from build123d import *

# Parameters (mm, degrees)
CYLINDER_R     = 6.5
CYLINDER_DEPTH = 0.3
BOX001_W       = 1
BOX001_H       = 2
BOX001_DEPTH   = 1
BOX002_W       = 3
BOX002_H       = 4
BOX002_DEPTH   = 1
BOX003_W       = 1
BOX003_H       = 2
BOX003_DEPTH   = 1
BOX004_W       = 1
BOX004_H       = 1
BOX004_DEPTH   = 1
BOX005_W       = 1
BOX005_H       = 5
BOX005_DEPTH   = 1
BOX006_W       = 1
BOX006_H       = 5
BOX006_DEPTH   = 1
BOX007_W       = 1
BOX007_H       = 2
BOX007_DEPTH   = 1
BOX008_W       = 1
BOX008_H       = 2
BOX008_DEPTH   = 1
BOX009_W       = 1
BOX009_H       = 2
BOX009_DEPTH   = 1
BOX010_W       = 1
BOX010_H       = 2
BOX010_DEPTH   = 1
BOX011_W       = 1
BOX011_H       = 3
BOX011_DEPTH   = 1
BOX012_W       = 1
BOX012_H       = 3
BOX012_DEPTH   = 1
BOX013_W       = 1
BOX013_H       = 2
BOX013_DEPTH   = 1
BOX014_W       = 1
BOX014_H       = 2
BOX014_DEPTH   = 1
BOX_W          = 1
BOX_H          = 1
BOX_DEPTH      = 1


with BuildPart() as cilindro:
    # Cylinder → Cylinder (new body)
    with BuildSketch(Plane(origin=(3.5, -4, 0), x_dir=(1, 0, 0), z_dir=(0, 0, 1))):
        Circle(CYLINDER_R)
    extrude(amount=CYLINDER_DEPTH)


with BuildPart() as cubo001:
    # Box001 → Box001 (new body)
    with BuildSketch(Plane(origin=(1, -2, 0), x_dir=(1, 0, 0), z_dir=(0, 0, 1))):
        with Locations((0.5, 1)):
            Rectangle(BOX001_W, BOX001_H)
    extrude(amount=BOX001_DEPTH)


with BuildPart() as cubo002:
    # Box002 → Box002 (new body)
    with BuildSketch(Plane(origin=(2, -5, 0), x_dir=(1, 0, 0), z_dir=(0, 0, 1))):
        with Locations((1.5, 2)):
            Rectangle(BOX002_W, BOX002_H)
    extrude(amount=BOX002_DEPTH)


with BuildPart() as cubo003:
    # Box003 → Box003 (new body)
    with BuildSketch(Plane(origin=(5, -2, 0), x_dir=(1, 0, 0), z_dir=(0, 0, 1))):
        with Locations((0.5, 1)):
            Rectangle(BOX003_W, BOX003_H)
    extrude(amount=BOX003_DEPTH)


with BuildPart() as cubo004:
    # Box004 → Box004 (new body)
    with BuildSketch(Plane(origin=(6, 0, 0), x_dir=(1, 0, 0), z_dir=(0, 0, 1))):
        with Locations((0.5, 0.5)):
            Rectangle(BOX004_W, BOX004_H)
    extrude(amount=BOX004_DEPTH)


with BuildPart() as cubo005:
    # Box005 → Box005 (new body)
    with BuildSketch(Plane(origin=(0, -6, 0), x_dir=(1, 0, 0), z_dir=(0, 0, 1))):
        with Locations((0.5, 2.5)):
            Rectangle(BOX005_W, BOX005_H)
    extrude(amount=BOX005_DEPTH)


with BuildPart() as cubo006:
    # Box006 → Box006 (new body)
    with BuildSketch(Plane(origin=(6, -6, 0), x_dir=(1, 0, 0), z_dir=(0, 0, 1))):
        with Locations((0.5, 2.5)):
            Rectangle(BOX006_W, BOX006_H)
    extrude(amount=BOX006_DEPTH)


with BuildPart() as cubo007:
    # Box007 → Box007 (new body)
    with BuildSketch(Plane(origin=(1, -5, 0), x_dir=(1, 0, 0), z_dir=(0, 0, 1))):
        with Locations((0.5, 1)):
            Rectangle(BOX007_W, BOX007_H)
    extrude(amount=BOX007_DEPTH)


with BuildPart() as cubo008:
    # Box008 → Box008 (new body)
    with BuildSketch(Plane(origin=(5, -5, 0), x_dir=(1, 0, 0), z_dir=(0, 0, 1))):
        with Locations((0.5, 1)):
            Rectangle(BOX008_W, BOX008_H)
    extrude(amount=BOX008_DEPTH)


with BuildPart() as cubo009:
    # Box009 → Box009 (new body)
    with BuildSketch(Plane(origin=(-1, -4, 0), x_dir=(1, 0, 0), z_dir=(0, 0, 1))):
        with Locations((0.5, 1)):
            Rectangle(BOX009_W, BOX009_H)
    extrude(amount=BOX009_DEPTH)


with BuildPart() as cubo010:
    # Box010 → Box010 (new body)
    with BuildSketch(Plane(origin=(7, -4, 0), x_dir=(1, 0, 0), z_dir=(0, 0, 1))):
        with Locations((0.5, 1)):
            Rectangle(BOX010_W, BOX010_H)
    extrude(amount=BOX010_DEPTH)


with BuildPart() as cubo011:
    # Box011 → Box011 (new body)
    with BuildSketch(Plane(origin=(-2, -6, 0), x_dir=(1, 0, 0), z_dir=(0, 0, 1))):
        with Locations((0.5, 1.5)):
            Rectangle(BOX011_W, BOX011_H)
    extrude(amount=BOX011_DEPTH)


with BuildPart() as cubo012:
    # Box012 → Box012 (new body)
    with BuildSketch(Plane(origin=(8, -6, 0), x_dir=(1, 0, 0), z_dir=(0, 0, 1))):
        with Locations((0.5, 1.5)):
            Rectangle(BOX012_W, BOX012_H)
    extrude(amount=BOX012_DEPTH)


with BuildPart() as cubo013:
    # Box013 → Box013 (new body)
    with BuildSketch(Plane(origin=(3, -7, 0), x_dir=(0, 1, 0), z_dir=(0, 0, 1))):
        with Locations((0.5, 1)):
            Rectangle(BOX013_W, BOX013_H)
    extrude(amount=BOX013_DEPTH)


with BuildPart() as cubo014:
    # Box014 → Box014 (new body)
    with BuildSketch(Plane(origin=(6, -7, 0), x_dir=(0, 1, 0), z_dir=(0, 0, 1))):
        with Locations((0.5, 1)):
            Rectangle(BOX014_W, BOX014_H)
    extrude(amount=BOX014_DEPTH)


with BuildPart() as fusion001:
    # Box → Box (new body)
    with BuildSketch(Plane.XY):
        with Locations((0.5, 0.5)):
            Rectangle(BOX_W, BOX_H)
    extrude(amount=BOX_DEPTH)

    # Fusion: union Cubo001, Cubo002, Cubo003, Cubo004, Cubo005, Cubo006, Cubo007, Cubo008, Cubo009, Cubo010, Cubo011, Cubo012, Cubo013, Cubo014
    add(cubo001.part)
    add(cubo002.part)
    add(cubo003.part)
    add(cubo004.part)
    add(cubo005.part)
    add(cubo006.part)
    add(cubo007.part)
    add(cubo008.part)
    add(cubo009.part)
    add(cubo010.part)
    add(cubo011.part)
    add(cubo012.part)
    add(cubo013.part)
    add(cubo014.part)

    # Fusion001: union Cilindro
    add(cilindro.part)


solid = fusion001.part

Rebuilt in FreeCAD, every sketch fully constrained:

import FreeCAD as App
import Part
import Sketcher

V = App.Vector
Q = App.Units.Quantity

doc = App.newDocument("Part")
params = doc.addObject("Spreadsheet::Sheet", "Params")
for row, (alias, value) in enumerate([
    ("sketch1_diameter", "13 mm"),
    ("pad1_length", "0.3 mm"),
    ("sketch2_width", "1 mm"),
    ("sketch2_height", "2 mm"),
    ("pad2_length", "1 mm"),
    ("sketch3_width", "3 mm"),
    ("sketch3_height", "4 mm"),
    ("pad3_length", "1 mm"),
    ("sketch4_width", "1 mm"),
    ("sketch4_height", "2 mm"),
    ("pad4_length", "1 mm"),
    ("sketch5_width", "1 mm"),
    ("pad5_length", "1 mm"),
    ("sketch6_width", "1 mm"),
    ("sketch6_height", "5 mm"),
    ("pad6_length", "1 mm"),
    ("sketch7_width", "1 mm"),
    ("sketch7_height", "5 mm"),
    ("pad7_length", "1 mm"),
    ("sketch8_width", "1 mm"),
    ("sketch8_height", "2 mm"),
    ("pad8_length", "1 mm"),
    ("sketch9_width", "1 mm"),
    ("sketch9_height", "2 mm"),
    ("pad9_length", "1 mm"),
    ("sketch10_width", "1 mm"),
    ("sketch10_height", "2 mm"),
    ("pad10_length", "1 mm"),
    ("sketch11_width", "1 mm"),
    ("sketch11_height", "2 mm"),
    ("pad11_length", "1 mm"),
    ("sketch12_width", "1 mm"),
    ("sketch12_height", "3 mm"),
    ("pad12_length", "1 mm"),
    ("sketch13_width", "1 mm"),
    ("sketch13_height", "3 mm"),
    ("pad13_length", "1 mm"),
    ("sketch14_width", "2 mm"),
    ("sketch14_height", "1 mm"),
    ("pad14_length", "1 mm"),
    ("sketch15_width", "2 mm"),
    ("sketch15_height", "1 mm"),
    ("pad15_length", "1 mm"),
    ("sketch16_width", "1 mm"),
    ("pad16_length", "1 mm"),
], start=1):
    params.set(f"A{row}", alias)
    params.set(f"B{row}", "=" + value)
    params.setAlias(f"B{row}", alias)

body = doc.addObject("PartDesign::Body", "Body")

# Sketch on XY plane
sketch1 = body.newObject("Sketcher::SketchObject", "Sketch")
sketch1.AttachmentSupport = (doc.getObject("XY_Plane"), [""])
sketch1.MapMode = "FlatFace"
sketch1.addGeometry(Part.Circle(V(4, -4, 0), V(0, 0, 1), 6), False)
sketch1.addConstraint([
    Sketcher.Constraint("Diameter", 0, Q("13 mm")),
    Sketcher.Constraint("DistanceY", 0, 3, -1, 1, Q("4 mm")),
    Sketcher.Constraint("DistanceX", -1, 1, 0, 3, Q("3.5 mm")),
])
sketch1.setExpression("Constraints[0]", "Params.sketch1_diameter")
pad1 = body.newObject("PartDesign::Pad", "Pad")
pad1.Profile = sketch1
pad1.setExpression("Length", "Params.pad1_length")
body2 = doc.addObject("PartDesign::Body", "Body001")

# Sketch on XY plane
sketch2 = body2.newObject("Sketcher::SketchObject", "Sketch001")
sketch2.AttachmentSupport = (doc.getObject("XY_Plane001"), [""])
sketch2.MapMode = "FlatFace"
sketch2.addGeometry([
    Part.LineSegment(V(1, 0, 0), V(1, -2, 0)),
    Part.LineSegment(V(1, -2, 0), V(2, -2, 0)),
    Part.LineSegment(V(2, -2, 0), V(2, 0, 0)),
    Part.LineSegment(V(2, 0, 0), V(1, 0, 0)),
], False)
sketch2.addConstraint([
    Sketcher.Constraint("Coincident", 0, 2, 1, 1),
    Sketcher.Constraint("Coincident", 1, 2, 2, 1),
    Sketcher.Constraint("Coincident", 2, 2, 3, 1),
    Sketcher.Constraint("Coincident", 3, 2, 0, 1),
    Sketcher.Constraint("Vertical", 0),
    Sketcher.Constraint("Horizontal", 1),
    Sketcher.Constraint("Vertical", 2),
    Sketcher.Constraint("Horizontal", 3),
    Sketcher.Constraint("PointOnObject", 2, 2, -1),
    Sketcher.Constraint("DistanceX", 1, 1, 1, 2, Q("1 mm")),
    Sketcher.Constraint("DistanceY", 0, 2, 0, 1, Q("2 mm")),
    Sketcher.Constraint("DistanceX", -1, 1, 0, 2, Q("1 mm")),
])
sketch2.setExpression("Constraints[9]", "Params.sketch2_width")
sketch2.setExpression("Constraints[10]", "Params.sketch2_height")
pad2 = body2.newObject("PartDesign::Pad", "Pad001")
pad2.Profile = sketch2
pad2.setExpression("Length", "Params.pad2_length")
body3 = doc.addObject("PartDesign::Body", "Body002")

# Sketch on XY plane
sketch3 = body3.newObject("Sketcher::SketchObject", "Sketch002")
sketch3.AttachmentSupport = (doc.getObject("XY_Plane002"), [""])
sketch3.MapMode = "FlatFace"
sketch3.addGeometry([
    Part.LineSegment(V(2, -1, 0), V(2, -5, 0)),
    Part.LineSegment(V(2, -5, 0), V(5, -5, 0)),
    Part.LineSegment(V(5, -5, 0), V(5, -1, 0)),
    Part.LineSegment(V(5, -1, 0), V(2, -1, 0)),
], False)
sketch3.addConstraint([
    Sketcher.Constraint("Coincident", 0, 2, 1, 1),
    Sketcher.Constraint("Coincident", 1, 2, 2, 1),
    Sketcher.Constraint("Coincident", 2, 2, 3, 1),
    Sketcher.Constraint("Coincident", 3, 2, 0, 1),
    Sketcher.Constraint("Vertical", 0),
    Sketcher.Constraint("Horizontal", 1),
    Sketcher.Constraint("Vertical", 2),
    Sketcher.Constraint("Horizontal", 3),
    Sketcher.Constraint("DistanceX", 1, 1, 1, 2, Q("3 mm")),
    Sketcher.Constraint("DistanceY", 0, 2, 0, 1, Q("4 mm")),
    Sketcher.Constraint("DistanceX", -1, 1, 0, 2, Q("2 mm")),
    Sketcher.Constraint("DistanceY", 0, 2, -1, 1, Q("5 mm")),
])
sketch3.setExpression("Constraints[8]", "Params.sketch3_width")
sketch3.setExpression("Constraints[9]", "Params.sketch3_height")
pad3 = body3.newObject("PartDesign::Pad", "Pad002")
pad3.Profile = sketch3
pad3.setExpression("Length", "Params.pad3_length")
body4 = doc.addObject("PartDesign::Body", "Body003")

# Sketch on XY plane
sketch4 = body4.newObject("Sketcher::SketchObject", "Sketch003")
sketch4.AttachmentSupport = (doc.getObject("XY_Plane003"), [""])
sketch4.MapMode = "FlatFace"
sketch4.addGeometry([
    Part.LineSegment(V(5, 0, 0), V(5, -2, 0)),
    Part.LineSegment(V(5, -2, 0), V(6, -2, 0)),
    Part.LineSegment(V(6, -2, 0), V(6, 0, 0)),
    Part.LineSegment(V(6, 0, 0), V(5, 0, 0)),
], False)
sketch4.addConstraint([
    Sketcher.Constraint("Coincident", 0, 2, 1, 1),
    Sketcher.Constraint("Coincident", 1, 2, 2, 1),
    Sketcher.Constraint("Coincident", 2, 2, 3, 1),
    Sketcher.Constraint("Coincident", 3, 2, 0, 1),
    Sketcher.Constraint("Vertical", 0),
    Sketcher.Constraint("Horizontal", 1),
    Sketcher.Constraint("Vertical", 2),
    Sketcher.Constraint("Horizontal", 3),
    Sketcher.Constraint("PointOnObject", 2, 2, -1),
    Sketcher.Constraint("DistanceX", 1, 1, 1, 2, Q("1 mm")),
    Sketcher.Constraint("DistanceY", 0, 2, 0, 1, Q("2 mm")),
    Sketcher.Constraint("DistanceX", -1, 1, 0, 2, Q("5 mm")),
])
sketch4.setExpression("Constraints[9]", "Params.sketch4_width")
sketch4.setExpression("Constraints[10]", "Params.sketch4_height")
pad4 = body4.newObject("PartDesign::Pad", "Pad003")
pad4.Profile = sketch4
pad4.setExpression("Length", "Params.pad4_length")
body5 = doc.addObject("PartDesign::Body", "Body004")

# Sketch on XY plane
sketch5 = body5.newObject("Sketcher::SketchObject", "Sketch004")
sketch5.AttachmentSupport = (doc.getObject("XY_Plane004"), [""])
sketch5.MapMode = "FlatFace"
sketch5.addGeometry([
    Part.LineSegment(V(6, 1, 0), V(6, 0, 0)),
    Part.LineSegment(V(6, 0, 0), V(7, 0, 0)),
    Part.LineSegment(V(7, 0, 0), V(7, 1, 0)),
    Part.LineSegment(V(7, 1, 0), V(6, 1, 0)),
], False)
sketch5.addConstraint([
    Sketcher.Constraint("Coincident", 0, 2, 1, 1),
    Sketcher.Constraint("Coincident", 1, 2, 2, 1),
    Sketcher.Constraint("Coincident", 2, 2, 3, 1),
    Sketcher.Constraint("Coincident", 3, 2, 0, 1),
    Sketcher.Constraint("Vertical", 0),
    Sketcher.Constraint("Horizontal", 1),
    Sketcher.Constraint("Vertical", 2),
    Sketcher.Constraint("Horizontal", 3),
    Sketcher.Constraint("PointOnObject", 0, 2, -1),
    Sketcher.Constraint("Equal", 3, 0),
    Sketcher.Constraint("DistanceX", 1, 1, 1, 2, Q("1 mm")),
    Sketcher.Constraint("DistanceX", -1, 1, 0, 2, Q("6 mm")),
])
sketch5.setExpression("Constraints[10]", "Params.sketch5_width")
pad5 = body5.newObject("PartDesign::Pad", "Pad004")
pad5.Profile = sketch5
pad5.setExpression("Length", "Params.pad5_length")
body6 = doc.addObject("PartDesign::Body", "Body005")

# Sketch on XY plane
sketch6 = body6.newObject("Sketcher::SketchObject", "Sketch005")
sketch6.AttachmentSupport = (doc.getObject("XY_Plane005"), [""])
sketch6.MapMode = "FlatFace"
sketch6.addGeometry([
    Part.LineSegment(V(0, -1, 0), V(0, -6, 0)),
    Part.LineSegment(V(0, -6, 0), V(1, -6, 0)),
    Part.LineSegment(V(1, -6, 0), V(1, -1, 0)),
    Part.LineSegment(V(1, -1, 0), V(0, -1, 0)),
], False)
sketch6.addConstraint([
    Sketcher.Constraint("Coincident", 0, 2, 1, 1),
    Sketcher.Constraint("Coincident", 1, 2, 2, 1),
    Sketcher.Constraint("Coincident", 2, 2, 3, 1),
    Sketcher.Constraint("Coincident", 3, 2, 0, 1),
    Sketcher.Constraint("Vertical", 0),
    Sketcher.Constraint("Horizontal", 1),
    Sketcher.Constraint("Vertical", 2),
    Sketcher.Constraint("Horizontal", 3),
    Sketcher.Constraint("PointOnObject", 0, 2, -2),
    Sketcher.Constraint("DistanceX", 1, 1, 1, 2, Q("1 mm")),
    Sketcher.Constraint("DistanceY", 0, 2, 0, 1, Q("5 mm")),
    Sketcher.Constraint("DistanceY", 0, 2, -1, 1, Q("6 mm")),
])
sketch6.setExpression("Constraints[9]", "Params.sketch6_width")
sketch6.setExpression("Constraints[10]", "Params.sketch6_height")
pad6 = body6.newObject("PartDesign::Pad", "Pad005")
pad6.Profile = sketch6
pad6.setExpression("Length", "Params.pad6_length")
body7 = doc.addObject("PartDesign::Body", "Body006")

# Sketch on XY plane
sketch7 = body7.newObject("Sketcher::SketchObject", "Sketch006")
sketch7.AttachmentSupport = (doc.getObject("XY_Plane006"), [""])
sketch7.MapMode = "FlatFace"
sketch7.addGeometry([
    Part.LineSegment(V(6, -1, 0), V(6, -6, 0)),
    Part.LineSegment(V(6, -6, 0), V(7, -6, 0)),
    Part.LineSegment(V(7, -6, 0), V(7, -1, 0)),
    Part.LineSegment(V(7, -1, 0), V(6, -1, 0)),
], False)
sketch7.addConstraint([
    Sketcher.Constraint("Coincident", 0, 2, 1, 1),
    Sketcher.Constraint("Coincident", 1, 2, 2, 1),
    Sketcher.Constraint("Coincident", 2, 2, 3, 1),
    Sketcher.Constraint("Coincident", 3, 2, 0, 1),
    Sketcher.Constraint("Vertical", 0),
    Sketcher.Constraint("Horizontal", 1),
    Sketcher.Constraint("Vertical", 2),
    Sketcher.Constraint("Horizontal", 3),
    Sketcher.Constraint("DistanceX", 1, 1, 1, 2, Q("1 mm")),
    Sketcher.Constraint("DistanceY", 0, 2, 0, 1, Q("5 mm")),
    Sketcher.Constraint("DistanceX", -1, 1, 0, 2, Q("6 mm")),
    Sketcher.Constraint("DistanceY", 0, 2, -1, 1, Q("6 mm")),
])
sketch7.setExpression("Constraints[8]", "Params.sketch7_width")
sketch7.setExpression("Constraints[9]", "Params.sketch7_height")
pad7 = body7.newObject("PartDesign::Pad", "Pad006")
pad7.Profile = sketch7
pad7.setExpression("Length", "Params.pad7_length")
body8 = doc.addObject("PartDesign::Body", "Body007")

# Sketch on XY plane
sketch8 = body8.newObject("Sketcher::SketchObject", "Sketch007")
sketch8.AttachmentSupport = (doc.getObject("XY_Plane007"), [""])
sketch8.MapMode = "FlatFace"
sketch8.addGeometry([
    Part.LineSegment(V(1, -3, 0), V(1, -5, 0)),
    Part.LineSegment(V(1, -5, 0), V(2, -5, 0)),
    Part.LineSegment(V(2, -5, 0), V(2, -3, 0)),
    Part.LineSegment(V(2, -3, 0), V(1, -3, 0)),
], False)
sketch8.addConstraint([
    Sketcher.Constraint("Coincident", 0, 2, 1, 1),
    Sketcher.Constraint("Coincident", 1, 2, 2, 1),
    Sketcher.Constraint("Coincident", 2, 2, 3, 1),
    Sketcher.Constraint("Coincident", 3, 2, 0, 1),
    Sketcher.Constraint("Vertical", 0),
    Sketcher.Constraint("Horizontal", 1),
    Sketcher.Constraint("Vertical", 2),
    Sketcher.Constraint("Horizontal", 3),
    Sketcher.Constraint("DistanceX", 1, 1, 1, 2, Q("1 mm")),
    Sketcher.Constraint("DistanceY", 0, 2, 0, 1, Q("2 mm")),
    Sketcher.Constraint("DistanceX", -1, 1, 0, 2, Q("1 mm")),
    Sketcher.Constraint("DistanceY", 0, 2, -1, 1, Q("5 mm")),
])
sketch8.setExpression("Constraints[8]", "Params.sketch8_width")
sketch8.setExpression("Constraints[9]", "Params.sketch8_height")
pad8 = body8.newObject("PartDesign::Pad", "Pad007")
pad8.Profile = sketch8
pad8.setExpression("Length", "Params.pad8_length")
body9 = doc.addObject("PartDesign::Body", "Body008")

# Sketch on XY plane
sketch9 = body9.newObject("Sketcher::SketchObject", "Sketch008")
sketch9.AttachmentSupport = (doc.getObject("XY_Plane008"), [""])
sketch9.MapMode = "FlatFace"
sketch9.addGeometry([
    Part.LineSegment(V(5, -3, 0), V(5, -5, 0)),
    Part.LineSegment(V(5, -5, 0), V(6, -5, 0)),
    Part.LineSegment(V(6, -5, 0), V(6, -3, 0)),
    Part.LineSegment(V(6, -3, 0), V(5, -3, 0)),
], False)
sketch9.addConstraint([
    Sketcher.Constraint("Coincident", 0, 2, 1, 1),
    Sketcher.Constraint("Coincident", 1, 2, 2, 1),
    Sketcher.Constraint("Coincident", 2, 2, 3, 1),
    Sketcher.Constraint("Coincident", 3, 2, 0, 1),
    Sketcher.Constraint("Vertical", 0),
    Sketcher.Constraint("Horizontal", 1),
    Sketcher.Constraint("Vertical", 2),
    Sketcher.Constraint("Horizontal", 3),
    Sketcher.Constraint("DistanceX", 1, 1, 1, 2, Q("1 mm")),
    Sketcher.Constraint("DistanceY", 0, 2, 0, 1, Q("2 mm")),
    Sketcher.Constraint("DistanceX", -1, 1, 0, 2, Q("5 mm")),
    Sketcher.Constraint("DistanceY", 0, 2, -1, 1, Q("5 mm")),
])
sketch9.setExpression("Constraints[8]", "Params.sketch9_width")
sketch9.setExpression("Constraints[9]", "Params.sketch9_height")
pad9 = body9.newObject("PartDesign::Pad", "Pad008")
pad9.Profile = sketch9
pad9.setExpression("Length", "Params.pad9_length")
body10 = doc.addObject("PartDesign::Body", "Body009")

# Sketch on XY plane
sketch10 = body10.newObject("Sketcher::SketchObject", "Sketch009")
sketch10.AttachmentSupport = (doc.getObject("XY_Plane009"), [""])
sketch10.MapMode = "FlatFace"
sketch10.addGeometry([
    Part.LineSegment(V(-1, -2, 0), V(-1, -4, 0)),
    Part.LineSegment(V(-1, -4, 0), V(0, -4, 0)),
    Part.LineSegment(V(0, -4, 0), V(0, -2, 0)),
    Part.LineSegment(V(0, -2, 0), V(-1, -2, 0)),
], False)
sketch10.addConstraint([
    Sketcher.Constraint("Coincident", 0, 2, 1, 1),
    Sketcher.Constraint("Coincident", 1, 2, 2, 1),
    Sketcher.Constraint("Coincident", 2, 2, 3, 1),
    Sketcher.Constraint("Coincident", 3, 2, 0, 1),
    Sketcher.Constraint("Vertical", 0),
    Sketcher.Constraint("Horizontal", 1),
    Sketcher.Constraint("Vertical", 2),
    Sketcher.Constraint("Horizontal", 3),
    Sketcher.Constraint("PointOnObject", 1, 2, -2),
    Sketcher.Constraint("DistanceX", 1, 1, 1, 2, Q("1 mm")),
    Sketcher.Constraint("DistanceY", 0, 2, 0, 1, Q("2 mm")),
    Sketcher.Constraint("DistanceY", 0, 2, -1, 1, Q("4 mm")),
])
sketch10.setExpression("Constraints[9]", "Params.sketch10_width")
sketch10.setExpression("Constraints[10]", "Params.sketch10_height")
pad10 = body10.newObject("PartDesign::Pad", "Pad009")
pad10.Profile = sketch10
pad10.setExpression("Length", "Params.pad10_length")
body11 = doc.addObject("PartDesign::Body", "Body010")

# Sketch on XY plane
sketch11 = body11.newObject("Sketcher::SketchObject", "Sketch010")
sketch11.AttachmentSupport = (doc.getObject("XY_Plane010"), [""])
sketch11.MapMode = "FlatFace"
sketch11.addGeometry([
    Part.LineSegment(V(7, -2, 0), V(7, -4, 0)),
    Part.LineSegment(V(7, -4, 0), V(8, -4, 0)),
    Part.LineSegment(V(8, -4, 0), V(8, -2, 0)),
    Part.LineSegment(V(8, -2, 0), V(7, -2, 0)),
], False)
sketch11.addConstraint([
    Sketcher.Constraint("Coincident", 0, 2, 1, 1),
    Sketcher.Constraint("Coincident", 1, 2, 2, 1),
    Sketcher.Constraint("Coincident", 2, 2, 3, 1),
    Sketcher.Constraint("Coincident", 3, 2, 0, 1),
    Sketcher.Constraint("Vertical", 0),
    Sketcher.Constraint("Horizontal", 1),
    Sketcher.Constraint("Vertical", 2),
    Sketcher.Constraint("Horizontal", 3),
    Sketcher.Constraint("DistanceX", 1, 1, 1, 2, Q("1 mm")),
    Sketcher.Constraint("DistanceY", 0, 2, 0, 1, Q("2 mm")),
    Sketcher.Constraint("DistanceX", -1, 1, 0, 2, Q("7 mm")),
    Sketcher.Constraint("DistanceY", 0, 2, -1, 1, Q("4 mm")),
])
sketch11.setExpression("Constraints[8]", "Params.sketch11_width")
sketch11.setExpression("Constraints[9]", "Params.sketch11_height")
pad11 = body11.newObject("PartDesign::Pad", "Pad010")
pad11.Profile = sketch11
pad11.setExpression("Length", "Params.pad11_length")
body12 = doc.addObject("PartDesign::Body", "Body011")

# Sketch on XY plane
sketch12 = body12.newObject("Sketcher::SketchObject", "Sketch011")
sketch12.AttachmentSupport = (doc.getObject("XY_Plane011"), [""])
sketch12.MapMode = "FlatFace"
sketch12.addGeometry([
    Part.LineSegment(V(-2, -3, 0), V(-2, -6, 0)),
    Part.LineSegment(V(-2, -6, 0), V(-1, -6, 0)),
    Part.LineSegment(V(-1, -6, 0), V(-1, -3, 0)),
    Part.LineSegment(V(-1, -3, 0), V(-2, -3, 0)),
], False)
sketch12.addConstraint([
    Sketcher.Constraint("Coincident", 0, 2, 1, 1),
    Sketcher.Constraint("Coincident", 1, 2, 2, 1),
    Sketcher.Constraint("Coincident", 2, 2, 3, 1),
    Sketcher.Constraint("Coincident", 3, 2, 0, 1),
    Sketcher.Constraint("Vertical", 0),
    Sketcher.Constraint("Horizontal", 1),
    Sketcher.Constraint("Vertical", 2),
    Sketcher.Constraint("Horizontal", 3),
    Sketcher.Constraint("DistanceX", 1, 1, 1, 2, Q("1 mm")),
    Sketcher.Constraint("DistanceY", 0, 2, 0, 1, Q("3 mm")),
    Sketcher.Constraint("DistanceX", 0, 2, -1, 1, Q("2 mm")),
    Sketcher.Constraint("DistanceY", 0, 2, -1, 1, Q("6 mm")),
])
sketch12.setExpression("Constraints[8]", "Params.sketch12_width")
sketch12.setExpression("Constraints[9]", "Params.sketch12_height")
pad12 = body12.newObject("PartDesign::Pad", "Pad011")
pad12.Profile = sketch12
pad12.setExpression("Length", "Params.pad12_length")
body13 = doc.addObject("PartDesign::Body", "Body012")

# Sketch on XY plane
sketch13 = body13.newObject("Sketcher::SketchObject", "Sketch012")
sketch13.AttachmentSupport = (doc.getObject("XY_Plane012"), [""])
sketch13.MapMode = "FlatFace"
sketch13.addGeometry([
    Part.LineSegment(V(8, -3, 0), V(8, -6, 0)),
    Part.LineSegment(V(8, -6, 0), V(9, -6, 0)),
    Part.LineSegment(V(9, -6, 0), V(9, -3, 0)),
    Part.LineSegment(V(9, -3, 0), V(8, -3, 0)),
], False)
sketch13.addConstraint([
    Sketcher.Constraint("Coincident", 0, 2, 1, 1),
    Sketcher.Constraint("Coincident", 1, 2, 2, 1),
    Sketcher.Constraint("Coincident", 2, 2, 3, 1),
    Sketcher.Constraint("Coincident", 3, 2, 0, 1),
    Sketcher.Constraint("Vertical", 0),
    Sketcher.Constraint("Horizontal", 1),
    Sketcher.Constraint("Vertical", 2),
    Sketcher.Constraint("Horizontal", 3),
    Sketcher.Constraint("DistanceX", 1, 1, 1, 2, Q("1 mm")),
    Sketcher.Constraint("DistanceY", 0, 2, 0, 1, Q("3 mm")),
    Sketcher.Constraint("DistanceX", -1, 1, 0, 2, Q("8 mm")),
    Sketcher.Constraint("DistanceY", 0, 2, -1, 1, Q("6 mm")),
])
sketch13.setExpression("Constraints[8]", "Params.sketch13_width")
sketch13.setExpression("Constraints[9]", "Params.sketch13_height")
pad13 = body13.newObject("PartDesign::Pad", "Pad012")
pad13.Profile = sketch13
pad13.setExpression("Length", "Params.pad13_length")
body14 = doc.addObject("PartDesign::Body", "Body013")

# Sketch on XY plane
sketch14 = body14.newObject("Sketcher::SketchObject", "Sketch013")
sketch14.AttachmentSupport = (doc.getObject("XY_Plane013"), [""])
sketch14.MapMode = "FlatFace"
sketch14.addGeometry([
    Part.LineSegment(V(1, -7, 0), V(3, -7, 0)),
    Part.LineSegment(V(3, -7, 0), V(3, -6, 0)),
    Part.LineSegment(V(3, -6, 0), V(1, -6, 0)),
    Part.LineSegment(V(1, -6, 0), V(1, -7, 0)),
], False)
sketch14.addConstraint([
    Sketcher.Constraint("Coincident", 0, 2, 1, 1),
    Sketcher.Constraint("Coincident", 1, 2, 2, 1),
    Sketcher.Constraint("Coincident", 2, 2, 3, 1),
    Sketcher.Constraint("Coincident", 3, 2, 0, 1),
    Sketcher.Constraint("Horizontal", 0),
    Sketcher.Constraint("Vertical", 1),
    Sketcher.Constraint("Horizontal", 2),
    Sketcher.Constraint("Vertical", 3),
    Sketcher.Constraint("DistanceX", 0, 1, 0, 2, Q("2 mm")),
    Sketcher.Constraint("DistanceY", 1, 1, 1, 2, Q("1 mm")),
    Sketcher.Constraint("DistanceX", -1, 1, 0, 2, Q("3 mm")),
    Sketcher.Constraint("DistanceY", 0, 2, -1, 1, Q("7 mm")),
])
sketch14.setExpression("Constraints[8]", "Params.sketch14_width")
sketch14.setExpression("Constraints[9]", "Params.sketch14_height")
pad14 = body14.newObject("PartDesign::Pad", "Pad013")
pad14.Profile = sketch14
pad14.setExpression("Length", "Params.pad14_length")
body15 = doc.addObject("PartDesign::Body", "Body014")

# Sketch on XY plane
sketch15 = body15.newObject("Sketcher::SketchObject", "Sketch014")
sketch15.AttachmentSupport = (doc.getObject("XY_Plane014"), [""])
sketch15.MapMode = "FlatFace"
sketch15.addGeometry([
    Part.LineSegment(V(4, -7, 0), V(6, -7, 0)),
    Part.LineSegment(V(6, -7, 0), V(6, -6, 0)),
    Part.LineSegment(V(6, -6, 0), V(4, -6, 0)),
    Part.LineSegment(V(4, -6, 0), V(4, -7, 0)),
], False)
sketch15.addConstraint([
    Sketcher.Constraint("Coincident", 0, 2, 1, 1),
    Sketcher.Constraint("Coincident", 1, 2, 2, 1),
    Sketcher.Constraint("Coincident", 2, 2, 3, 1),
    Sketcher.Constraint("Coincident", 3, 2, 0, 1),
    Sketcher.Constraint("Horizontal", 0),
    Sketcher.Constraint("Vertical", 1),
    Sketcher.Constraint("Horizontal", 2),
    Sketcher.Constraint("Vertical", 3),
    Sketcher.Constraint("DistanceX", 0, 1, 0, 2, Q("2 mm")),
    Sketcher.Constraint("DistanceY", 1, 1, 1, 2, Q("1 mm")),
    Sketcher.Constraint("DistanceX", -1, 1, 0, 2, Q("6 mm")),
    Sketcher.Constraint("DistanceY", 0, 2, -1, 1, Q("7 mm")),
])
sketch15.setExpression("Constraints[8]", "Params.sketch15_width")
sketch15.setExpression("Constraints[9]", "Params.sketch15_height")
pad15 = body15.newObject("PartDesign::Pad", "Pad014")
pad15.Profile = sketch15
pad15.setExpression("Length", "Params.pad15_length")
body16 = doc.addObject("PartDesign::Body", "Body015")
body16.AllowCompound = True

# Sketch on XY plane
sketch16 = body16.newObject("Sketcher::SketchObject", "Sketch015")
sketch16.AttachmentSupport = (doc.getObject("XY_Plane015"), [""])
sketch16.MapMode = "FlatFace"
sketch16.addGeometry([
    Part.LineSegment(V(0, 1, 0), V(0, 0, 0)),
    Part.LineSegment(V(0, 0, 0), V(1, 0, 0)),
    Part.LineSegment(V(1, 0, 0), V(1, 1, 0)),
    Part.LineSegment(V(1, 1, 0), V(0, 1, 0)),
], False)
sketch16.addConstraint([
    Sketcher.Constraint("Coincident", 0, 2, 1, 1),
    Sketcher.Constraint("Coincident", 1, 2, 2, 1),
    Sketcher.Constraint("Coincident", 2, 2, 3, 1),
    Sketcher.Constraint("Coincident", 3, 2, 0, 1),
    Sketcher.Constraint("Vertical", 0),
    Sketcher.Constraint("Horizontal", 1),
    Sketcher.Constraint("Vertical", 2),
    Sketcher.Constraint("Horizontal", 3),
    Sketcher.Constraint("Coincident", 0, 2, -1, 1),
    Sketcher.Constraint("Equal", 3, 0),
    Sketcher.Constraint("DistanceX", 1, 1, 1, 2, Q("1 mm")),
])
sketch16.setExpression("Constraints[10]", "Params.sketch16_width")
pad16 = body16.newObject("PartDesign::Pad", "Pad015")
pad16.Profile = sketch16
pad16.setExpression("Length", "Params.pad16_length")
doc.recompute()

boolean = body16.newObject("PartDesign::Boolean", "Boolean")
boolean.Type = "Fuse"
boolean.addObjects([body2])
doc.recompute()

boolean2 = body16.newObject("PartDesign::Boolean", "Boolean001")
boolean2.Type = "Fuse"
boolean2.addObjects([body3])
doc.recompute()

boolean3 = body16.newObject("PartDesign::Boolean", "Boolean002")
boolean3.Type = "Fuse"
boolean3.addObjects([body4])
doc.recompute()

boolean4 = body16.newObject("PartDesign::Boolean", "Boolean003")
boolean4.Type = "Fuse"
boolean4.addObjects([body5])
doc.recompute()

boolean5 = body16.newObject("PartDesign::Boolean", "Boolean004")
boolean5.Type = "Fuse"
boolean5.addObjects([body6])
doc.recompute()

boolean6 = body16.newObject("PartDesign::Boolean", "Boolean005")
boolean6.Type = "Fuse"
boolean6.addObjects([body7])
doc.recompute()

boolean7 = body16.newObject("PartDesign::Boolean", "Boolean006")
boolean7.Type = "Fuse"
boolean7.addObjects([body8])
doc.recompute()

boolean8 = body16.newObject("PartDesign::Boolean", "Boolean007")
boolean8.Type = "Fuse"
boolean8.addObjects([body9])
doc.recompute()

boolean9 = body16.newObject("PartDesign::Boolean", "Boolean008")
boolean9.Type = "Fuse"
boolean9.addObjects([body10])
doc.recompute()

boolean10 = body16.newObject("PartDesign::Boolean", "Boolean009")
boolean10.Type = "Fuse"
boolean10.addObjects([body11])
doc.recompute()

boolean11 = body16.newObject("PartDesign::Boolean", "Boolean010")
boolean11.Type = "Fuse"
boolean11.addObjects([body12])
doc.recompute()

boolean12 = body16.newObject("PartDesign::Boolean", "Boolean011")
boolean12.Type = "Fuse"
boolean12.addObjects([body13])
doc.recompute()

boolean13 = body16.newObject("PartDesign::Boolean", "Boolean012")
boolean13.Type = "Fuse"
boolean13.addObjects([body14])
doc.recompute()

boolean14 = body16.newObject("PartDesign::Boolean", "Boolean013")
boolean14.Type = "Fuse"
boolean14.addObjects([body15])
doc.recompute()

boolean15 = body16.newObject("PartDesign::Boolean", "Boolean014")
boolean15.Type = "Fuse"
boolean15.addObjects([body])

doc.recompute()
